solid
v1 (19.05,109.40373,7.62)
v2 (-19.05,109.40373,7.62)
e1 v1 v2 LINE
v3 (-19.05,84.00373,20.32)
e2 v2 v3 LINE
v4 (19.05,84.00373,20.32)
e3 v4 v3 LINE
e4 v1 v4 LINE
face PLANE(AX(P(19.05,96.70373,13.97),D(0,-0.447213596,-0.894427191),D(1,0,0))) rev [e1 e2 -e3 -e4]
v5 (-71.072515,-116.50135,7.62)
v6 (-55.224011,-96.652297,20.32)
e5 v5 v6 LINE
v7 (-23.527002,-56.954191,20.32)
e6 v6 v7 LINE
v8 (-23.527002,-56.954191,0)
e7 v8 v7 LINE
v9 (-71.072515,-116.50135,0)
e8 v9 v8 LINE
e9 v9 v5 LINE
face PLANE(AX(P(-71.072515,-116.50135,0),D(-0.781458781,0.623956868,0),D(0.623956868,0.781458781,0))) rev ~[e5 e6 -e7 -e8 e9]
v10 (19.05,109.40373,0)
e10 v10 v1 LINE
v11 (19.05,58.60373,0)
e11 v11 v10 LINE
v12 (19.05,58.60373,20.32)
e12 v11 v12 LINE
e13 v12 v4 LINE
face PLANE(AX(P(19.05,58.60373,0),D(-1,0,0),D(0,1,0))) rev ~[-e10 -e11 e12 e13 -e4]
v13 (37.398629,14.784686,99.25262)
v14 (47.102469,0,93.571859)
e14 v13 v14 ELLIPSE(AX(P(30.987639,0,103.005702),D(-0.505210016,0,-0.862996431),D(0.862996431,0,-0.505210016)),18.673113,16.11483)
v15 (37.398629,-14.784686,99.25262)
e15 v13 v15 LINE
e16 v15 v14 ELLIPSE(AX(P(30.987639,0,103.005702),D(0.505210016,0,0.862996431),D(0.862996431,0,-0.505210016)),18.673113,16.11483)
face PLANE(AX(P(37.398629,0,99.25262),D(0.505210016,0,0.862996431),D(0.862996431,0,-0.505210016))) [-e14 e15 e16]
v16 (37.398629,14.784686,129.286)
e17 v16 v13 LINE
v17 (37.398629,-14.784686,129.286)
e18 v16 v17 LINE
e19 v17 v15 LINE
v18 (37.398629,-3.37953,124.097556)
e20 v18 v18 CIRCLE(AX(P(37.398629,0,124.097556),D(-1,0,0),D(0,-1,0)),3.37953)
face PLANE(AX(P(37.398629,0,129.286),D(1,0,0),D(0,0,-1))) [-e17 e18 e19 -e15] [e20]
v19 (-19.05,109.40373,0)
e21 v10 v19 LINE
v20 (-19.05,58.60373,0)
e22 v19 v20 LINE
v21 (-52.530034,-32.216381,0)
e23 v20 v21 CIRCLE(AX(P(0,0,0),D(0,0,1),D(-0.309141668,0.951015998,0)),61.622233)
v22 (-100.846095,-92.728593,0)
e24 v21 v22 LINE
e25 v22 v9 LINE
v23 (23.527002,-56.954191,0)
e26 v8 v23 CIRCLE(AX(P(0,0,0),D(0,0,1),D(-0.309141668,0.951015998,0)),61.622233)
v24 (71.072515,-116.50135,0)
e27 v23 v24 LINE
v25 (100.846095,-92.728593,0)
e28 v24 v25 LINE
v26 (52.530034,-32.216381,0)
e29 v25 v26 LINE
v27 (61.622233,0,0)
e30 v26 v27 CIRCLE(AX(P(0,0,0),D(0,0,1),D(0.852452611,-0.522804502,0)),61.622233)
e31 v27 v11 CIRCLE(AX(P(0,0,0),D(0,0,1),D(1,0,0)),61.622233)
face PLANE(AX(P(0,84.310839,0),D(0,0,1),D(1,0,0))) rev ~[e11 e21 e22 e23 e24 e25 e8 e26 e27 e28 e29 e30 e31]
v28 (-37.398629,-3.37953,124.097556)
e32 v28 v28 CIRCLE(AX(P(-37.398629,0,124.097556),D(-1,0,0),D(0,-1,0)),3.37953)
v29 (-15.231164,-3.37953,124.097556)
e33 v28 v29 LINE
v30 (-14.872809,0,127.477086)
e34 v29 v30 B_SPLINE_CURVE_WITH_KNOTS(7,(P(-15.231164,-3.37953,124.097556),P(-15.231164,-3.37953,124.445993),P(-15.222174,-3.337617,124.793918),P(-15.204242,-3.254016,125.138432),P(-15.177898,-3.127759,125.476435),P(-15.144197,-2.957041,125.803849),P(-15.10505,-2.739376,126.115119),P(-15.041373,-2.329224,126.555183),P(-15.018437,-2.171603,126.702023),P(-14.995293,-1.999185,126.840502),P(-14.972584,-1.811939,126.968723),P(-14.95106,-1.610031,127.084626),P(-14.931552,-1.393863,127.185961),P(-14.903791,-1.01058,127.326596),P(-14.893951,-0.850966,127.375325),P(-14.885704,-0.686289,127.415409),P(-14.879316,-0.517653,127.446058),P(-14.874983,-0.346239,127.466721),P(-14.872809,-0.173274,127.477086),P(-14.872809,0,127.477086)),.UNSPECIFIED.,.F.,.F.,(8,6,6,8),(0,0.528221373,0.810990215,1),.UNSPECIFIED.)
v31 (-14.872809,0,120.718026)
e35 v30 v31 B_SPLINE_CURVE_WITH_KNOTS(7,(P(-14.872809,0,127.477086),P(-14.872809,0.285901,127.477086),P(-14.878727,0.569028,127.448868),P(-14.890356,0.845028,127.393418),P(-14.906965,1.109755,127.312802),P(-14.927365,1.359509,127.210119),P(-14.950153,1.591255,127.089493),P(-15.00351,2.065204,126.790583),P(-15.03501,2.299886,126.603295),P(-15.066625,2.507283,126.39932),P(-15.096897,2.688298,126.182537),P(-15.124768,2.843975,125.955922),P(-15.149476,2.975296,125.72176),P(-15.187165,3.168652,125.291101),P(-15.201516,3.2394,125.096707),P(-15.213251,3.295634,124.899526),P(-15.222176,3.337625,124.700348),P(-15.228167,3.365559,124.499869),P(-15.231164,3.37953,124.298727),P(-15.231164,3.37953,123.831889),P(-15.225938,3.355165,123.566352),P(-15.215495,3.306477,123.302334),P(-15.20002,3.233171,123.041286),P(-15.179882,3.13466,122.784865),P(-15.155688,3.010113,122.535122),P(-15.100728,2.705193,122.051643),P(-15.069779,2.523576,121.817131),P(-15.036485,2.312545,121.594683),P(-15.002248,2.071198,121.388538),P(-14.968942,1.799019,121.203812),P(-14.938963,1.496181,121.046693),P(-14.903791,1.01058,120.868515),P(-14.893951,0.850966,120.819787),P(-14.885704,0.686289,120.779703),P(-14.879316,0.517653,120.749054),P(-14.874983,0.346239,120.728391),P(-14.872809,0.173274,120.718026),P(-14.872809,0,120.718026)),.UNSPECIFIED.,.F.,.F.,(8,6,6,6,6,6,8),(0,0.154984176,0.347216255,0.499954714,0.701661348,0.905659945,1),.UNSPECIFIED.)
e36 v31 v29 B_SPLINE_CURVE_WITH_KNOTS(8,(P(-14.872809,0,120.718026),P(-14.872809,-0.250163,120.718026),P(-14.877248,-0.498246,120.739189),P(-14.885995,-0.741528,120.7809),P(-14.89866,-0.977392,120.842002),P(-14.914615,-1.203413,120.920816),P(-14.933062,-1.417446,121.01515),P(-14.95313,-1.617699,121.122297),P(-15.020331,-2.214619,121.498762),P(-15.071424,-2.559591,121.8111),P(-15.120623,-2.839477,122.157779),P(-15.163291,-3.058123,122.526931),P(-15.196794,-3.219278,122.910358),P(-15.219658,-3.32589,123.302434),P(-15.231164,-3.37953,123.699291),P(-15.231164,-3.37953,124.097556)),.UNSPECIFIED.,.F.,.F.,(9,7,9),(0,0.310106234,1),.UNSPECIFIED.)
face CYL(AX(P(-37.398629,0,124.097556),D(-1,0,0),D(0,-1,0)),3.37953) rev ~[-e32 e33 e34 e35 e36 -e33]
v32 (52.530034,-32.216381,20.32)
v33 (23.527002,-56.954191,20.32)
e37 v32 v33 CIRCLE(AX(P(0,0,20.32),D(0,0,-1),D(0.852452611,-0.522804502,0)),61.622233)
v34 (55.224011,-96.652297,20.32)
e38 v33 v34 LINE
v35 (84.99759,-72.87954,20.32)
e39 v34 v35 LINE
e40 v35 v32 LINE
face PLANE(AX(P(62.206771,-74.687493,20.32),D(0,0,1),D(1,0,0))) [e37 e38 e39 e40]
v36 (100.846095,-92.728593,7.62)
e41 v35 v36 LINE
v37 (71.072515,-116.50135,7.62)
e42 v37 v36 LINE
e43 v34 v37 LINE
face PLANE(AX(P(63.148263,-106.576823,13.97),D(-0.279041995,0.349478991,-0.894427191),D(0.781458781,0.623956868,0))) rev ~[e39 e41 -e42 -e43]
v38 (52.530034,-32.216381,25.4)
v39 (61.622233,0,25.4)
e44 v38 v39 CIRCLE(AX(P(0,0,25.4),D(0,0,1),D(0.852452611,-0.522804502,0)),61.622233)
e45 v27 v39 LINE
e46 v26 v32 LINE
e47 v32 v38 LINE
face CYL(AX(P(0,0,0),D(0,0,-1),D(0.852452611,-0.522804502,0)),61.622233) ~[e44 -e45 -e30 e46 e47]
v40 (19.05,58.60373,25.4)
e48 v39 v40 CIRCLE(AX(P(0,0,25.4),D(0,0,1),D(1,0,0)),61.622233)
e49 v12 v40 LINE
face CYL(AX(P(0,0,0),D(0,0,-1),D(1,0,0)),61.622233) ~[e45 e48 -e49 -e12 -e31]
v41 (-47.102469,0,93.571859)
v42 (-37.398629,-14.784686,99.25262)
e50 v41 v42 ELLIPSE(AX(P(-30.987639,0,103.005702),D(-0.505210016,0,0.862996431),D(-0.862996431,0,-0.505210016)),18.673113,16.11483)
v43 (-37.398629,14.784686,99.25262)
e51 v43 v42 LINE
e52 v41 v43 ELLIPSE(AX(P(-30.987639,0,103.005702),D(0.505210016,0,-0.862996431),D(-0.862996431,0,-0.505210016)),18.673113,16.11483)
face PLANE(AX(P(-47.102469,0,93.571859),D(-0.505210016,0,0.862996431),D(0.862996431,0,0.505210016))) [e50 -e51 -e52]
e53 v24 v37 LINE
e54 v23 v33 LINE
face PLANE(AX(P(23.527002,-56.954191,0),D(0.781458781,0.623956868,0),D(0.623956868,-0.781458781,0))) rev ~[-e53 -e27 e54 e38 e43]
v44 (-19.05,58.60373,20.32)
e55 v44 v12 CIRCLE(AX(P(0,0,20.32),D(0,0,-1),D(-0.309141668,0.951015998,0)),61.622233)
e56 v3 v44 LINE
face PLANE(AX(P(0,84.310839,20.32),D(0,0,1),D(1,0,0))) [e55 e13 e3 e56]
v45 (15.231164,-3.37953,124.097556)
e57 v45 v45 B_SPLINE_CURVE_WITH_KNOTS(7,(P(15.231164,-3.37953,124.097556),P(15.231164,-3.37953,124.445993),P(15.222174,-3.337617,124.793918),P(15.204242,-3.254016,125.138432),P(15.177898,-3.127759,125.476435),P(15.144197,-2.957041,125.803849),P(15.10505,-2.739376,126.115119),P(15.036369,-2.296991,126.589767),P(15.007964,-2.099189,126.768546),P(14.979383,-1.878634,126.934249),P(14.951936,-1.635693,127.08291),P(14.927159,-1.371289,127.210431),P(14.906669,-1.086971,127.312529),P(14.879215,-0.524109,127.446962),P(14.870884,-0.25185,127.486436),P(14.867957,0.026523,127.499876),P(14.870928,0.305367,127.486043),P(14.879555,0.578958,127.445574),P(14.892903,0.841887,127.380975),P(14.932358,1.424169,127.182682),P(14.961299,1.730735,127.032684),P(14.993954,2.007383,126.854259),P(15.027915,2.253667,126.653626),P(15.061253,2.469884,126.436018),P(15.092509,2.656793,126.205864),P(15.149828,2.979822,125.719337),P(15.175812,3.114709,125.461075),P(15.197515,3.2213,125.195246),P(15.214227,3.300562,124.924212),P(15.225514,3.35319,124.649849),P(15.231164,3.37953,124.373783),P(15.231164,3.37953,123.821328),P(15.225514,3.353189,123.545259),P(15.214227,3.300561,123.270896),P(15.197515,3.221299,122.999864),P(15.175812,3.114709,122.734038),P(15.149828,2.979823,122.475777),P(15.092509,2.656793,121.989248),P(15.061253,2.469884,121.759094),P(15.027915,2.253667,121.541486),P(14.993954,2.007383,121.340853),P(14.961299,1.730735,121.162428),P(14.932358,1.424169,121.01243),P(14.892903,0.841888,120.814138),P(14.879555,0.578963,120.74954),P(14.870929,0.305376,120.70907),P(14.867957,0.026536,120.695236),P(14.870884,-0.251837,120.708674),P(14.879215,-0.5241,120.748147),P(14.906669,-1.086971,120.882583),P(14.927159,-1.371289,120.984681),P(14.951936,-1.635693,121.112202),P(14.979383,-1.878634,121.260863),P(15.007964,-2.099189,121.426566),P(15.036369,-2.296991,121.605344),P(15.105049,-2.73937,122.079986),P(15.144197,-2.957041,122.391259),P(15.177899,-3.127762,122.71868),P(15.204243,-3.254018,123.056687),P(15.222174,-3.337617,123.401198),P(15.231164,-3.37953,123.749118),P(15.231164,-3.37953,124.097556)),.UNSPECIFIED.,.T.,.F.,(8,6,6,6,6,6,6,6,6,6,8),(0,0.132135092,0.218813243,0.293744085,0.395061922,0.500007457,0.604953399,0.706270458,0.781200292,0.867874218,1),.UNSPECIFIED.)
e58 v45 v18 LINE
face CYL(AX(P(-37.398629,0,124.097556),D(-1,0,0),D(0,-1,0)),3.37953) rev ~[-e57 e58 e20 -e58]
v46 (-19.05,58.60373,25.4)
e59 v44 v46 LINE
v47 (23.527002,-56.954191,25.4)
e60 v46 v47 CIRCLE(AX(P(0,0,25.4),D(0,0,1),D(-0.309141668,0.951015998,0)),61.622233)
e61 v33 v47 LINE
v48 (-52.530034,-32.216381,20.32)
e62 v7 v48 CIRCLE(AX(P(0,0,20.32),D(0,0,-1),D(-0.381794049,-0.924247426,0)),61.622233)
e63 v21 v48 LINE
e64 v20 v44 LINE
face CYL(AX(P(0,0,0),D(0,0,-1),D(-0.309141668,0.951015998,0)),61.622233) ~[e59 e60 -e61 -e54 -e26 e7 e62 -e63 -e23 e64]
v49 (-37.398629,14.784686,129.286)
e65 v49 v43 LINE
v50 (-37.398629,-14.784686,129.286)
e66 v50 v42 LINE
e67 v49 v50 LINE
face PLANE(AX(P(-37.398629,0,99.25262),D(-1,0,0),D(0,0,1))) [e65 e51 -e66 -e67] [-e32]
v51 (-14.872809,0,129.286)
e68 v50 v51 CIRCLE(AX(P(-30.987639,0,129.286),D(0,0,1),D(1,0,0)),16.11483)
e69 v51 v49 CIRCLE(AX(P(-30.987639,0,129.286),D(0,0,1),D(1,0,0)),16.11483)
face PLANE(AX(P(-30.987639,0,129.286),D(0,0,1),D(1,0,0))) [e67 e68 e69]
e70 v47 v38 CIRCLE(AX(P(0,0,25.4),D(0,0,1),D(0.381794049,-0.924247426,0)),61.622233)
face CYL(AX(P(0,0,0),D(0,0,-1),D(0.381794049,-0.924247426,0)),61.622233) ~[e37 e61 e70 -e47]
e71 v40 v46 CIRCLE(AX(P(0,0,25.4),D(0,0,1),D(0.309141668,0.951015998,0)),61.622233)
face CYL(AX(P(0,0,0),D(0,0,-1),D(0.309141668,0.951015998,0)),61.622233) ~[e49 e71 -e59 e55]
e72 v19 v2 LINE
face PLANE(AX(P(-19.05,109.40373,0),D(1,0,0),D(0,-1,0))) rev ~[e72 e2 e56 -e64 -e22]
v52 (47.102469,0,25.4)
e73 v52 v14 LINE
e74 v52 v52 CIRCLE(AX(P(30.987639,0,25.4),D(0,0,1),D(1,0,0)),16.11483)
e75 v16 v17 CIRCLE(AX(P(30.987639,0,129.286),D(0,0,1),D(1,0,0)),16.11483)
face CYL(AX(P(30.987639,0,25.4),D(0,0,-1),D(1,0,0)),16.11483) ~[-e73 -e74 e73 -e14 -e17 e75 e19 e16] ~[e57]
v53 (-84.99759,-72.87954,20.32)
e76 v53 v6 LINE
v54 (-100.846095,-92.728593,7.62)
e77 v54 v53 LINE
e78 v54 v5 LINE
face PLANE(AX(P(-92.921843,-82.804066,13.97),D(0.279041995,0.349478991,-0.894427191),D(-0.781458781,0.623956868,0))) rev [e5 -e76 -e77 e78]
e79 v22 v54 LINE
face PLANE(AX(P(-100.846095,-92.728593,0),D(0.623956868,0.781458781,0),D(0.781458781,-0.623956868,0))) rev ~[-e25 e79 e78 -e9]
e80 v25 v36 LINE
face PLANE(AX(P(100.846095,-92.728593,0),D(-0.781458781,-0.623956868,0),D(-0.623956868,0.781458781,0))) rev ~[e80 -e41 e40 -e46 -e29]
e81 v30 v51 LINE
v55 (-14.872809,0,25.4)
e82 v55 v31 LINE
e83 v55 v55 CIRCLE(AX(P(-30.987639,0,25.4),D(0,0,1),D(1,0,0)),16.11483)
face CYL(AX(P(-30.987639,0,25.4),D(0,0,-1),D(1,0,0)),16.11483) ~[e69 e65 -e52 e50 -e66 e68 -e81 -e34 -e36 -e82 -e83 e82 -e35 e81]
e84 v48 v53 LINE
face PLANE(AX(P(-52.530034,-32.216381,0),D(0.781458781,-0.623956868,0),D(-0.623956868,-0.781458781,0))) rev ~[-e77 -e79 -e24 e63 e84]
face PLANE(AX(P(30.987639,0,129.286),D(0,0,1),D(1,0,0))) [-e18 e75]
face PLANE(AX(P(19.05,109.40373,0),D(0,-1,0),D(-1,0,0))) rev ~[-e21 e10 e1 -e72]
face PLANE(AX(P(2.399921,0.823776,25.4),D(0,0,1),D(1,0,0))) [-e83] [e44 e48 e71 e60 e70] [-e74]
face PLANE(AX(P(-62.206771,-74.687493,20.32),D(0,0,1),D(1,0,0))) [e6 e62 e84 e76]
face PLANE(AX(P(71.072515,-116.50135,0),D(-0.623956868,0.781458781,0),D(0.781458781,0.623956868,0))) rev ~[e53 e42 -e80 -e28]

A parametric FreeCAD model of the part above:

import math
import FreeCAD as App
import Part
import Sketcher
Q = App.Units.Quantity


def edges_at(feature, points):
    """Names of the edges that pass closest to the given points."""
    edges = feature.Shape.Edges
    near = lambda p: min(range(len(edges)), key=lambda i: edges[i].distToShape(Part.Vertex(*p))[0])
    return sorted({f"Edge{near(p) + 1}" for p in points})


def add_polygon(sketch, points):
    """Adds a closed chain of lines whose ends are joined by coincident constraints."""
    first, n = sketch.GeometryCount, len(points)
    for a, b in zip(points, points[1:] + points[:1]):
        sketch.addGeometry(Part.LineSegment(App.Vector(*a, 0), App.Vector(*b, 0)), False)
    for i in range(n):
        sketch.addConstraint(Sketcher.Constraint("Coincident", first + i, 2, first + (i + 1) % n, 1))

doc = App.newDocument("Part")
params = doc.addObject("Spreadsheet::Sheet", "Params")
for row, (alias, value) in enumerate([
    ("pad1_length", "1 in"),
    ("sketch2_height", "2 in"),
    ("sketch2_length", "3 in"),
    ("sketch2_width", "1.5 in"),
    ("sketch2_length2", "1.5 in"),
    ("pad2_length", "0.8 in"),
    ("chamfer_size", "1 in"),
    ("chamfer_size2", "0.5 in"),
    ("chamfer2_size", "0.5 in"),
    ("chamfer2_size2", "1 in"),
    ("chamfer3_size", "0.5 in"),
    ("chamfer3_size2", "1 in"),
    ("pad3_length", "4.09 in"),
], start=1):
    params.set(f"A{row}", alias)
    params.set(f"B{row}", "=" + value)
    params.setAlias(f"B{row}", alias)

body = doc.addObject("PartDesign::Body", "Body")

sketch1 = body.newObject("Sketcher::SketchObject", "Sketch")
sketch1.AttachmentSupport = (doc.getObject("XY_Plane"), [""])
sketch1.MapMode = "FlatFace"
sketch1.addGeometry([
    Part.ArcOfCircle(Part.Circle(App.Vector(0, 0, 0), App.Vector(0, 0, 1), 62), math.radians(-32), math.radians(0)),
    Part.ArcOfCircle(Part.Circle(App.Vector(0, 0, 0), App.Vector(0, 0, 1), 62), math.radians(0), math.radians(72)),
    Part.ArcOfCircle(Part.Circle(App.Vector(0, 0, 0), App.Vector(0, 0, 1), 62), math.radians(72), math.radians(108)),
    Part.ArcOfCircle(Part.Circle(App.Vector(0, 0, 0), App.Vector(0, 0, 1), 62), math.radians(108), math.radians(292)),
    Part.ArcOfCircle(Part.Circle(App.Vector(0, 0, 0), App.Vector(0, 0, 1), 62), math.radians(-68), math.radians(-32)),
], False)
sketch1.addConstraint([
    Sketcher.Constraint("Tangent", 0, 2, 1, 1),
    Sketcher.Constraint("Tangent", 1, 2, 2, 1),
    Sketcher.Constraint("Tangent", 2, 2, 3, 1),
    Sketcher.Constraint("Tangent", 3, 2, 4, 1),
    Sketcher.Constraint("Tangent", 4, 2, 0, 1),
    Sketcher.Constraint("Coincident", 0, 3, -1, 1),
    Sketcher.Constraint("Coincident", 2, 3, -1, 1),
    Sketcher.Constraint("PointOnObject", 0, 2, -1),
    Sketcher.Constraint("Horizontal", 1, 2, 2, 2),
    Sketcher.Constraint("DistanceX", 2, 2, 1, 2, Q("1.5 in")),
    Sketcher.Constraint("Radius", 0, 61.622233),
    Sketcher.Constraint("DistanceX", -1, 1, 3, 2, 23.527002),
    Sketcher.Constraint("DistanceX", 4, 2, 0, 2, 9.0922),
])
pad1 = body.newObject("PartDesign::Pad", "Pad")
pad1.Profile = sketch1
pad1.setExpression("Length", "Params.pad1_length")

sketch2 = body.newObject("Sketcher::SketchObject", "Sketch001")
sketch2.AttachmentSupport = (doc.getObject("XY_Plane"), [""])
sketch2.MapMode = "FlatFace"
sketch2.addGeometry([
    Part.ArcOfCircle(Part.Circle(App.Vector(0, 0, 0), App.Vector(0, 0, 1), 62), math.radians(-148), math.radians(-112)),
    Part.LineSegment(App.Vector(-53, -32, 0), App.Vector(-101, -93, 0)),
    Part.LineSegment(App.Vector(-101, -93, 0), App.Vector(-71, -117, 0)),
    Part.LineSegment(App.Vector(-71, -117, 0), App.Vector(-24, -57, 0)),
    Part.ArcOfCircle(Part.Circle(App.Vector(0, 0, 0), App.Vector(0, 0, 1), 62), math.radians(72), math.radians(108)),
    Part.LineSegment(App.Vector(19, 59, 0), App.Vector(19, 109, 0)),
    Part.LineSegment(App.Vector(19, 109, 0), App.Vector(-19, 109, 0)),
    Part.LineSegment(App.Vector(-19, 109, 0), App.Vector(-19, 59, 0)),
    Part.LineSegment(App.Vector(101, -93, 0), App.Vector(53, -32, 0)),
    Part.ArcOfCircle(Part.Circle(App.Vector(0, 0, 0), App.Vector(0, 0, 1), 62), math.radians(-68), math.radians(-32)),
    Part.LineSegment(App.Vector(24, -57, 0), App.Vector(71, -117, 0)),
    Part.LineSegment(App.Vector(71, -117, 0), App.Vector(101, -93, 0)),
], False)
sketch2.addConstraint([
    Sketcher.Constraint("Coincident", 0, 1, 1, 1),
    Sketcher.Constraint("Coincident", 1, 2, 2, 1),
    Sketcher.Constraint("Coincident", 2, 2, 3, 1),
    Sketcher.Constraint("Coincident", 3, 2, 0, 2),
    Sketcher.Constraint("Coincident", 4, 1, 5, 1),
    Sketcher.Constraint("Coincident", 5, 2, 6, 1),
    Sketcher.Constraint("Coincident", 6, 2, 7, 1),
    Sketcher.Constraint("Coincident", 7, 2, 4, 2),
    Sketcher.Constraint("Coincident", 8, 2, 9, 2),
    Sketcher.Constraint("Coincident", 9, 1, 10, 1),
    Sketcher.Constraint("Coincident", 10, 2, 11, 1),
    Sketcher.Constraint("Coincident", 11, 2, 8, 1),
    Sketcher.Constraint("Vertical", 5),
    Sketcher.Constraint("Horizontal", 6),
    Sketcher.Constraint("Vertical", 7),
    Sketcher.Constraint("Coincident", 0, 3, -1, 1),
    Sketcher.Constraint("Coincident", 4, 3, -1, 1),
    Sketcher.Constraint("Coincident", 9, 3, -1, 1),
    Sketcher.Constraint("Equal", 0, 4),
    Sketcher.Constraint("Equal", 4, 9),
    Sketcher.Constraint("Symmetric", 2, 2, 10, 2, -2),
    Sketcher.Constraint("Symmetric", 1, 2, 11, 2, -2),
    Sketcher.Constraint("Perpendicular", 1, 2),
    Sketcher.Constraint("Perpendicular", 2, 3),
    Sketcher.Constraint("Parallel", 8, 10),
    Sketcher.Constraint("Perpendicular", 10, 11),
    Sketcher.Constraint("Horizontal", 4, 1, 7, 2),
    Sketcher.Constraint("DistanceY", 5, 1, 5, 2, Q("2 in")),
    Sketcher.Constraint("Distance", 3, Q("3 in")),
    Sketcher.Constraint("DistanceX", 6, 2, 6, 1, Q("1.5 in")),
    Sketcher.Constraint("Distance", 2, Q("1.5 in")),
    Sketcher.Constraint("Radius", 0, 61.622233),
    Sketcher.Constraint("DistanceX", 3, 2, -1, 1, 23.527002),
    Sketcher.Constraint("DistanceY", 2, 2, -1, 1, 116.50135),
])
sketch2.setExpression("Constraints[27]", "Params.sketch2_height")
sketch2.setExpression("Constraints[28]", "Params.sketch2_length")
sketch2.setExpression("Constraints[29]", "Params.sketch2_width")
sketch2.setExpression("Constraints[30]", "Params.sketch2_length2")
pad2 = body.newObject("PartDesign::Pad", "Pad001")
pad2.Profile = sketch2
pad2.setExpression("Length", "Params.pad2_length")
doc.recompute()

chamfer = body.newObject("PartDesign::Chamfer", "Chamfer")
chamfer.Base = (pad2, edges_at(pad2, [(85.959, -104.615, 20.32)]))
chamfer.ChamferType = "Two distances"
chamfer.setExpression("Size", "Params.chamfer_size")
chamfer.setExpression("Size2", "Params.chamfer_size2")
doc.recompute()

chamfer2 = body.newObject("PartDesign::Chamfer", "Chamfer001")
chamfer2.Base = (chamfer, edges_at(chamfer, [(-85.959, -104.615, 20.32)]))
chamfer2.ChamferType = "Two distances"
chamfer2.setExpression("Size", "Params.chamfer2_size")
chamfer2.setExpression("Size2", "Params.chamfer2_size2")
doc.recompute()

chamfer3 = body.newObject("PartDesign::Chamfer", "Chamfer002")
chamfer3.Base = (chamfer2, edges_at(chamfer2, [(0, 109.404, 20.32)]))
chamfer3.ChamferType = "Two distances"
chamfer3.setExpression("Size", "Params.chamfer3_size")
chamfer3.setExpression("Size2", "Params.chamfer3_size2")

sketch3 = body.newObject("Sketcher::SketchObject", "Sketch002")
sketch3.AttachmentSupport = (doc.getObject("XY_Plane"), [""])
sketch3.MapMode = "FlatFace"
sketch3.AttachmentOffset = App.Placement(App.Vector(0, 0, 1 * 25.4), App.Rotation())
sketch3.addGeometry([
    Part.Circle(App.Vector(-31, 0, 0), App.Vector(0, 0, 1), 16),
    Part.Circle(App.Vector(31, 0, 0), App.Vector(0, 0, 1), 16),
], False)
sketch3.addConstraint([
    Sketcher.Constraint("Equal", 0, 1),
    Sketcher.Constraint("Symmetric", 0, 3, 1, 3, -1, 1),
    Sketcher.Constraint("PointOnObject", 0, 3, -1),
    Sketcher.Constraint("Diameter", 0, 32.229659),
    Sketcher.Constraint("DistanceX", 0, 3, -1, 1, 30.987639),
])
pad3 = body.newObject("PartDesign::Pad", "Pad002")
pad3.Profile = sketch3
pad3.setExpression("Length", "Params.pad3_length")

sketch4 = body.newObject("Sketcher::SketchObject", "Sketch003")
sketch4.AttachmentSupport = (doc.getObject("XZ_Plane"), [""])
sketch4.MapMode = "FlatFace"
add_polygon(sketch4, [(47, 129), (37, 129), (37, 99), (47, 94)])
add_polygon(sketch4, [(-47, 129), (-47, 94), (-37, 99), (-37, 129)])
sketch4.addConstraint([
    Sketcher.Constraint("Horizontal", 0),
    Sketcher.Constraint("Vertical", 1),
    Sketcher.Constraint("Vertical", 3),
    Sketcher.Constraint("Vertical", 4),
    Sketcher.Constraint("Vertical", 6),
    Sketcher.Constraint("Horizontal", 7),
    Sketcher.Constraint("Symmetric", 2, 2, 4, 2, -2),
    Sketcher.Constraint("Symmetric", 1, 2, 5, 2, -2),
    Sketcher.Constraint("Horizontal", 3, 2, 6, 2),
    Sketcher.Constraint("DistanceY", -1, 1, 0, 2, Q("5.09 in")),
    Sketcher.Constraint("DistanceX", 0, 2, 0, 1, 9.70384),
    Sketcher.Constraint("DistanceY", 1, 2, 1, 1, 30.03338),
    Sketcher.Constraint("DistanceY", 3, 1, 3, 2, 35.714141),
    Sketcher.Constraint("DistanceX", -1, 1, 0, 2, 37.398629),
])
pocket1 = body.newObject("PartDesign::Pocket", "Pocket")
pocket1.Profile = sketch4
pocket1.Type = "ThroughAll"
pocket1.Midplane = True

sketch5 = body.newObject("Sketcher::SketchObject", "Sketch004")
sketch5.AttachmentSupport = (doc.getObject("YZ_Plane"), [""])
sketch5.MapMode = "FlatFace"
sketch5.AttachmentOffset = App.Placement(App.Vector(0, 0, -37.398629), App.Rotation())
sketch5.addGeometry(Part.Circle(App.Vector(0, 124.1, 0), App.Vector(0, 0, 1), 3.4), False)
sketch5.addConstraint([
    Sketcher.Constraint("PointOnObject", 0, 3, -2),
    Sketcher.Constraint("Diameter", 0, 6.75906),
    Sketcher.Constraint("DistanceY", -1, 1, 0, 3, 124.097556),
])
pocket2 = body.newObject("PartDesign::Pocket", "Pocket001")
pocket2.Profile = sketch5
pocket2.Type = "ThroughAll"
pocket2.Reversed = True

doc.recompute()
